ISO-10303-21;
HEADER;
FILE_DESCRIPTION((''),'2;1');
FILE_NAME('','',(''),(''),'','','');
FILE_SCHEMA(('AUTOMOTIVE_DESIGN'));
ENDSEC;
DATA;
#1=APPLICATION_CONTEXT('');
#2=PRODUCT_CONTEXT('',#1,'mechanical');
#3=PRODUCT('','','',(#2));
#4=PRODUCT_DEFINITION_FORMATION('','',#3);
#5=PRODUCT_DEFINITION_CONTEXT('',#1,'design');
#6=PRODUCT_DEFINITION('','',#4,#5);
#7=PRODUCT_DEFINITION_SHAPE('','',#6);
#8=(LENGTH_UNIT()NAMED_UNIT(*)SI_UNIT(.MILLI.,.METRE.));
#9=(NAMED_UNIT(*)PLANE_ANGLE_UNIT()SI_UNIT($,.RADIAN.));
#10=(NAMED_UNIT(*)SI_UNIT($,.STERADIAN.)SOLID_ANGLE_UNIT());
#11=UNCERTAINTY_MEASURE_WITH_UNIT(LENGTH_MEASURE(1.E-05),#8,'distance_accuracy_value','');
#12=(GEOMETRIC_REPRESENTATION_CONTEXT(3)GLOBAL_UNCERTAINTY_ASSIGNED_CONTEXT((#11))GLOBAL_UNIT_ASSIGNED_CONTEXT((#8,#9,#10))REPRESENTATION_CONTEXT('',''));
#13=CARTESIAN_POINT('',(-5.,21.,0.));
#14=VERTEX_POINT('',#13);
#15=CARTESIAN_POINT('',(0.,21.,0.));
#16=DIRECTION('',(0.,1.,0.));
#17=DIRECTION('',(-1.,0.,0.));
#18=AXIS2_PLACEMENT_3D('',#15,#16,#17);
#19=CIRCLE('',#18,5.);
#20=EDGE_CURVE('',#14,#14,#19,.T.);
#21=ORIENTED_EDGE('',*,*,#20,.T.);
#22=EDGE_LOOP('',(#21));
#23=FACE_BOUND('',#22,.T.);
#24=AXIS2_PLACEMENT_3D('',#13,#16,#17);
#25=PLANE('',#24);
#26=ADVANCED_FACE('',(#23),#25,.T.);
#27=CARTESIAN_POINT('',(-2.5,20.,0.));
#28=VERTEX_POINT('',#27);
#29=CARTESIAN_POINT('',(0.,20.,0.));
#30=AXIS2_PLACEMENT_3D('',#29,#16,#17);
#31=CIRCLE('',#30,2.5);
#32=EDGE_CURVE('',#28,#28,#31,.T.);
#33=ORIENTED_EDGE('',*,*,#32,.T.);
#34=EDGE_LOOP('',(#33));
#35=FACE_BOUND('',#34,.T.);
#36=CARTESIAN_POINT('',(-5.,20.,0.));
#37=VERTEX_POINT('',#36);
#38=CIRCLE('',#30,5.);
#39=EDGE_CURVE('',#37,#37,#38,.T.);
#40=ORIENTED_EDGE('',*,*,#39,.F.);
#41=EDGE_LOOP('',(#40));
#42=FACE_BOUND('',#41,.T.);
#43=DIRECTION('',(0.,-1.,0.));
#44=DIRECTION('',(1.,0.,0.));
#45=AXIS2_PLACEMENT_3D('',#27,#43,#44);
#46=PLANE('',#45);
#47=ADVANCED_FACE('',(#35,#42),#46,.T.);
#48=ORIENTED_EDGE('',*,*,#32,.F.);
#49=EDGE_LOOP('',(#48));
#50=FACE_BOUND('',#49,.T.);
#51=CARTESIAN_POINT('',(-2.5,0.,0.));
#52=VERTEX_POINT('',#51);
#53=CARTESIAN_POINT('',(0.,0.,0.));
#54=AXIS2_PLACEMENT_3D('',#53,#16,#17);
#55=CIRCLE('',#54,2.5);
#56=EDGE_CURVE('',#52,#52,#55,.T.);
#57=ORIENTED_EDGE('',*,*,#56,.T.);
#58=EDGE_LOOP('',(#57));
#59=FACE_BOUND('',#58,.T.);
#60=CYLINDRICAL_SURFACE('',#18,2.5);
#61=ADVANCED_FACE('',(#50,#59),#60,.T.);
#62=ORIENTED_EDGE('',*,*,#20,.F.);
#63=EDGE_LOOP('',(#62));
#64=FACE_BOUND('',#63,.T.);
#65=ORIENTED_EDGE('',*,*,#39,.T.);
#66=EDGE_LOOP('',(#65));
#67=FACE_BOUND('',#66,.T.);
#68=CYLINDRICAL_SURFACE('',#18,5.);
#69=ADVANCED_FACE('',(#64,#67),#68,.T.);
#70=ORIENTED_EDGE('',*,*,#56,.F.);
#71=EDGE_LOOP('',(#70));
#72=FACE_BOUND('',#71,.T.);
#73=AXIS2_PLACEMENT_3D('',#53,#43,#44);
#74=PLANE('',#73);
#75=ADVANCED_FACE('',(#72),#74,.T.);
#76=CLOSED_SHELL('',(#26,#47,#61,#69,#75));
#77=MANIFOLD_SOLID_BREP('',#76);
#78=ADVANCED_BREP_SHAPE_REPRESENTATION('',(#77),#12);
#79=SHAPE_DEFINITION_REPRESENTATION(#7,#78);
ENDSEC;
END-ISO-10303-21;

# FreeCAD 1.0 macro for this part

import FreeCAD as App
import Part
import Sketcher

V = App.Vector
Q = App.Units.Quantity


def add_polygon(sketch, points):
    """Adds a closed chain of lines whose ends are joined by coincident constraints."""
    first, n = sketch.GeometryCount, len(points)
    for a, b in zip(points, points[1:] + points[:1]):
        sketch.addGeometry(Part.LineSegment(App.Vector(*a, 0), App.Vector(*b, 0)), False)
    for i in range(n):
        sketch.addConstraint(Sketcher.Constraint("Coincident", first + i, 2, first + (i + 1) % n, 1))

doc = App.newDocument("Part")
body = doc.addObject("PartDesign::Body", "Body")

# Sketch on XY plane
sketch1 = doc.addObject("Sketcher::SketchObject", "Sketch")
body.addObject(sketch1)
sketch1.AttachmentSupport = (doc.XY_Plane, [""])
sketch1.MapMode = "FlatFace"
add_polygon(sketch1, [(-2.5, 0), (0, 0), (0, 21), (-5, 21), (-5, 20), (-2.5, 20)])  # lines 0-5
sketch1.addConstraint([
    Sketcher.Constraint("Horizontal", 0),
    Sketcher.Constraint("Vertical", 1),
    Sketcher.Constraint("Horizontal", 2),
    Sketcher.Constraint("Vertical", 3),
    Sketcher.Constraint("Horizontal", 4),
    Sketcher.Constraint("Vertical", 5),
    Sketcher.Constraint("Coincident", 0, 2, -1, 1),
    Sketcher.Constraint("Equal", 0, 4),
    Sketcher.Constraint("DistanceX", 2, 2, 2, 1, Q("5 mm")),
    Sketcher.Constraint("DistanceY", 1, 1, 1, 2, Q("21 mm")),
    Sketcher.Constraint("DistanceY", 3, 2, 3, 1, Q("1 mm")),
])
revolution = doc.addObject("PartDesign::Revolution", "Revolution")
body.addObject(revolution)
revolution.Profile = sketch1
revolution.ReferenceAxis = (sketch1, ["V_Axis"])
revolution.Angle = 360

doc.recompute()
